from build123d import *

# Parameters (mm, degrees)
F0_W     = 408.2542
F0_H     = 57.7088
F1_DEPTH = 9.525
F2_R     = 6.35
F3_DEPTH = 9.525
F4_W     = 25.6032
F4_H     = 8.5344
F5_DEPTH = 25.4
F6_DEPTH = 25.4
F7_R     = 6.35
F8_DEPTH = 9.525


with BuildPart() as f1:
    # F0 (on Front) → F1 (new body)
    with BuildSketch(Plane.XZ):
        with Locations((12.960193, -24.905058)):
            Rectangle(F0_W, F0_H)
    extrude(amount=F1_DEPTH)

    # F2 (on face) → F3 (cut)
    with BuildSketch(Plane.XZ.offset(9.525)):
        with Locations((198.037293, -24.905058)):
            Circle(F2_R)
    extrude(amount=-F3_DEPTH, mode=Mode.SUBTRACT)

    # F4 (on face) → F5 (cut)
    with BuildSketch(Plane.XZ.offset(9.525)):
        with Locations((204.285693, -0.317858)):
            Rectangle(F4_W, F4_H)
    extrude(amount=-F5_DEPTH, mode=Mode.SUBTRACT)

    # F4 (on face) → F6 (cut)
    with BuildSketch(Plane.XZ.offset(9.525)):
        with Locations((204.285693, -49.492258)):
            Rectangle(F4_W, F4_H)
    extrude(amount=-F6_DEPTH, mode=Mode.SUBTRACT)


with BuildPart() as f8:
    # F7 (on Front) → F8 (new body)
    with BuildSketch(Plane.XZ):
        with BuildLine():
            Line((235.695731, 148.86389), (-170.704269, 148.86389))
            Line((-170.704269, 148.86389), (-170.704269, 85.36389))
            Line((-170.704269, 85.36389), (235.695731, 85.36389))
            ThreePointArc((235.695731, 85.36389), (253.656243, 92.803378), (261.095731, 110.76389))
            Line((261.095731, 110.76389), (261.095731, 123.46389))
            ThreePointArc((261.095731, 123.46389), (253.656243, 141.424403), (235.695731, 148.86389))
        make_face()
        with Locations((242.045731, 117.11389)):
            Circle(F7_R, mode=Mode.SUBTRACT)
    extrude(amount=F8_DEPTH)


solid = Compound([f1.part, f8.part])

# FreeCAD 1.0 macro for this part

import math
import FreeCAD as App
import Part
import Sketcher
from FreeCAD import Vector
Q = App.Units.Quantity


def add_polygon(sketch, points):
    """Adds a closed chain of lines whose ends are joined by coincident constraints."""
    first, n = sketch.GeometryCount, len(points)
    for a, b in zip(points, points[1:] + points[:1]):
        sketch.addGeometry(Part.LineSegment(App.Vector(*a, 0), App.Vector(*b, 0)), False)
    for i in range(n):
        sketch.addConstraint(Sketcher.Constraint("Coincident", first + i, 2, first + (i + 1) % n, 1))

doc = App.newDocument("Part")
body = doc.addObject("PartDesign::Body", "Body")

sketch1 = body.newObject("Sketcher::SketchObject", "Sketch")
sketch1.AttachmentSupport = (doc.getObject("XZ_Plane"), [""])
sketch1.MapMode = "FlatFace"
add_polygon(sketch1, [(-191.166907, 3.949342), (-191.166907, -53.759458), (217.087293, -53.759458), (217.087293, 3.949342)])
sketch1.addConstraint([
    Sketcher.Constraint("Vertical", 0),
    Sketcher.Constraint("Horizontal", 1),
    Sketcher.Constraint("Vertical", 2),
    Sketcher.Constraint("Horizontal", 3),
    Sketcher.Constraint("DistanceX", 1, 1, 1, 2, Q("16.073 in")),
    Sketcher.Constraint("DistanceY", 0, 2, 0, 1, Q("2.272 in")),
    Sketcher.Constraint("DistanceY", 0, 2, -1, 1, Q("53.759458 mm")),
    Sketcher.Constraint("DistanceX", 0, 2, -1, 1, Q("191.166907 mm")),
])
pad1 = body.newObject("PartDesign::Pad", "Pad")
pad1.Profile = sketch1
pad1.Length = Q("0.375 in")

sketch2 = body.newObject("Sketcher::SketchObject", "Sketch001")
sketch2.AttachmentSupport = (doc.getObject("XZ_Plane"), [""])
sketch2.MapMode = "FlatFace"
sketch2.AttachmentOffset = App.Placement(Vector(0, 0, 0.375 * 25.4), App.Rotation())
sketch2.addGeometry(Part.Circle(Vector(198.037293, -24.905058, 0), Vector(0, 0, 1), 6.35), False)
sketch2.addConstraint([
    Sketcher.Constraint("Diameter", 0, Q("0.5 in")),
    Sketcher.Constraint("DistanceY", 0, 3, -1, 1, Q("24.905058 mm")),
    Sketcher.Constraint("DistanceX", -1, 1, 0, 3, Q("198.037293 mm")),
])
pocket1 = body.newObject("PartDesign::Pocket", "Pocket")
pocket1.Profile = sketch2
pocket1.Length = Q("0.375 in")

sketch3 = body.newObject("Sketcher::SketchObject", "Sketch002")
sketch3.AttachmentSupport = (doc.getObject("XZ_Plane"), [""])
sketch3.MapMode = "FlatFace"
sketch3.AttachmentOffset = App.Placement(Vector(0, 0, 0.375 * 25.4), App.Rotation())
add_polygon(sketch3, [(191.484093, 3.949342), (191.484093, -4.585058), (217.087293, -4.585058), (217.087293, 3.949342)])
sketch3.addConstraint([
    Sketcher.Constraint("Vertical", 0),
    Sketcher.Constraint("Horizontal", 1),
    Sketcher.Constraint("Vertical", 2),
    Sketcher.Constraint("Horizontal", 3),
    Sketcher.Constraint("DistanceX", 1, 1, 1, 2, Q("1.008 in")),
    Sketcher.Constraint("DistanceY", 0, 2, 0, 1, Q("0.336 in")),
    Sketcher.Constraint("DistanceX", -1, 1, 0, 2, Q("191.484093 mm")),
    Sketcher.Constraint("DistanceY", 0, 2, -1, 1, Q("4.585058 mm")),
])
pocket2 = body.newObject("PartDesign::Pocket", "Pocket001")
pocket2.Profile = sketch3
pocket2.Length = Q("1 in")

sketch4 = body.newObject("Sketcher::SketchObject", "Sketch003")
sketch4.AttachmentSupport = (doc.getObject("XZ_Plane"), [""])
sketch4.MapMode = "FlatFace"
sketch4.AttachmentOffset = App.Placement(Vector(0, 0, 0.375 * 25.4), App.Rotation())
add_polygon(sketch4, [(191.484093, -45.225058), (191.484093, -53.759458), (217.087293, -53.759458), (217.087293, -45.225058)])
sketch4.addConstraint([
    Sketcher.Constraint("Vertical", 0),
    Sketcher.Constraint("Horizontal", 1),
    Sketcher.Constraint("Vertical", 2),
    Sketcher.Constraint("Horizontal", 3),
    Sketcher.Constraint("DistanceX", 1, 1, 1, 2, Q("1.008 in")),
    Sketcher.Constraint("DistanceY", 0, 2, 0, 1, Q("0.336 in")),
    Sketcher.Constraint("DistanceY", 0, 2, -1, 1, Q("53.759458 mm")),
    Sketcher.Constraint("DistanceX", -1, 1, 0, 2, Q("191.484093 mm")),
])
pocket3 = body.newObject("PartDesign::Pocket", "Pocket002")
pocket3.Profile = sketch4
pocket3.Length = Q("1 in")
body2 = doc.addObject("PartDesign::Body", "Body001")

sketch5 = body2.newObject("Sketcher::SketchObject", "Sketch004")
sketch5.AttachmentSupport = (doc.getObject("XZ_Plane001"), [""])
sketch5.MapMode = "FlatFace"
sketch5.addGeometry([
    Part.LineSegment(Vector(235.695731, 148.86389, 0), Vector(-170.704269, 148.86389, 0)),
    Part.LineSegment(Vector(-170.704269, 148.86389, 0), Vector(-170.704269, 85.36389, 0)),
    Part.LineSegment(Vector(-170.704269, 85.36389, 0), Vector(235.695731, 85.36389, 0)),
    Part.ArcOfCircle(Part.Circle(Vector(235.69573, 110.763891, 0), Vector(0, 0, 1), 25.400001), math.radians(-89.999998), math.radians(-0.000002)),
    Part.LineSegment(Vector(261.095731, 110.76389, 0), Vector(261.095731, 123.46389, 0)),
    Part.ArcOfCircle(Part.Circle(Vector(235.695732, 123.463891, 0), Vector(0, 0, 1), 25.399999), math.radians(-0.000002), math.radians(90.000002)),
    Part.Circle(Vector(242.045731, 117.11389, 0), Vector(0, 0, 1), 6.35),
], False)
sketch5.addConstraint([
    Sketcher.Constraint("Coincident", 0, 2, 1, 1),
    Sketcher.Constraint("Coincident", 1, 2, 2, 1),
    Sketcher.Constraint("Tangent", 2, 2, 3, 1),
    Sketcher.Constraint("Tangent", 3, 2, 4, 1),
    Sketcher.Constraint("Tangent", 4, 2, 5, 1),
    Sketcher.Constraint("Tangent", 5, 2, 0, 1),
    Sketcher.Constraint("Horizontal", 0),
    Sketcher.Constraint("Vertical", 1),
    Sketcher.Constraint("Horizontal", 2),
    Sketcher.Constraint("Vertical", 4),
    Sketcher.Constraint("Equal", 3, 5),
    Sketcher.Constraint("Radius", 3, Q("1 in")),
    Sketcher.Constraint("Diameter", 6, Q("0.5 in")),
    Sketcher.Constraint("DistanceX", 0, 2, 0, 1, Q("16 in")),
    Sketcher.Constraint("DistanceY", 1, 2, 1, 1, Q("2.5 in")),
    Sketcher.Constraint("DistanceX", 5, 3, 6, 3, Q("0.25 in")),
    Sketcher.Constraint("DistanceY", 6, 3, 5, 3, Q("0.25 in")),
    Sketcher.Constraint("DistanceX", -1, 1, 3, 3, Q("235.69573 mm")),
    Sketcher.Constraint("DistanceY", -1, 1, 3, 3, Q("110.763891 mm")),
])
pad2 = body2.newObject("PartDesign::Pad", "Pad001")
pad2.Profile = sketch5
pad2.Length = Q("0.375 in")

doc.recompute()
